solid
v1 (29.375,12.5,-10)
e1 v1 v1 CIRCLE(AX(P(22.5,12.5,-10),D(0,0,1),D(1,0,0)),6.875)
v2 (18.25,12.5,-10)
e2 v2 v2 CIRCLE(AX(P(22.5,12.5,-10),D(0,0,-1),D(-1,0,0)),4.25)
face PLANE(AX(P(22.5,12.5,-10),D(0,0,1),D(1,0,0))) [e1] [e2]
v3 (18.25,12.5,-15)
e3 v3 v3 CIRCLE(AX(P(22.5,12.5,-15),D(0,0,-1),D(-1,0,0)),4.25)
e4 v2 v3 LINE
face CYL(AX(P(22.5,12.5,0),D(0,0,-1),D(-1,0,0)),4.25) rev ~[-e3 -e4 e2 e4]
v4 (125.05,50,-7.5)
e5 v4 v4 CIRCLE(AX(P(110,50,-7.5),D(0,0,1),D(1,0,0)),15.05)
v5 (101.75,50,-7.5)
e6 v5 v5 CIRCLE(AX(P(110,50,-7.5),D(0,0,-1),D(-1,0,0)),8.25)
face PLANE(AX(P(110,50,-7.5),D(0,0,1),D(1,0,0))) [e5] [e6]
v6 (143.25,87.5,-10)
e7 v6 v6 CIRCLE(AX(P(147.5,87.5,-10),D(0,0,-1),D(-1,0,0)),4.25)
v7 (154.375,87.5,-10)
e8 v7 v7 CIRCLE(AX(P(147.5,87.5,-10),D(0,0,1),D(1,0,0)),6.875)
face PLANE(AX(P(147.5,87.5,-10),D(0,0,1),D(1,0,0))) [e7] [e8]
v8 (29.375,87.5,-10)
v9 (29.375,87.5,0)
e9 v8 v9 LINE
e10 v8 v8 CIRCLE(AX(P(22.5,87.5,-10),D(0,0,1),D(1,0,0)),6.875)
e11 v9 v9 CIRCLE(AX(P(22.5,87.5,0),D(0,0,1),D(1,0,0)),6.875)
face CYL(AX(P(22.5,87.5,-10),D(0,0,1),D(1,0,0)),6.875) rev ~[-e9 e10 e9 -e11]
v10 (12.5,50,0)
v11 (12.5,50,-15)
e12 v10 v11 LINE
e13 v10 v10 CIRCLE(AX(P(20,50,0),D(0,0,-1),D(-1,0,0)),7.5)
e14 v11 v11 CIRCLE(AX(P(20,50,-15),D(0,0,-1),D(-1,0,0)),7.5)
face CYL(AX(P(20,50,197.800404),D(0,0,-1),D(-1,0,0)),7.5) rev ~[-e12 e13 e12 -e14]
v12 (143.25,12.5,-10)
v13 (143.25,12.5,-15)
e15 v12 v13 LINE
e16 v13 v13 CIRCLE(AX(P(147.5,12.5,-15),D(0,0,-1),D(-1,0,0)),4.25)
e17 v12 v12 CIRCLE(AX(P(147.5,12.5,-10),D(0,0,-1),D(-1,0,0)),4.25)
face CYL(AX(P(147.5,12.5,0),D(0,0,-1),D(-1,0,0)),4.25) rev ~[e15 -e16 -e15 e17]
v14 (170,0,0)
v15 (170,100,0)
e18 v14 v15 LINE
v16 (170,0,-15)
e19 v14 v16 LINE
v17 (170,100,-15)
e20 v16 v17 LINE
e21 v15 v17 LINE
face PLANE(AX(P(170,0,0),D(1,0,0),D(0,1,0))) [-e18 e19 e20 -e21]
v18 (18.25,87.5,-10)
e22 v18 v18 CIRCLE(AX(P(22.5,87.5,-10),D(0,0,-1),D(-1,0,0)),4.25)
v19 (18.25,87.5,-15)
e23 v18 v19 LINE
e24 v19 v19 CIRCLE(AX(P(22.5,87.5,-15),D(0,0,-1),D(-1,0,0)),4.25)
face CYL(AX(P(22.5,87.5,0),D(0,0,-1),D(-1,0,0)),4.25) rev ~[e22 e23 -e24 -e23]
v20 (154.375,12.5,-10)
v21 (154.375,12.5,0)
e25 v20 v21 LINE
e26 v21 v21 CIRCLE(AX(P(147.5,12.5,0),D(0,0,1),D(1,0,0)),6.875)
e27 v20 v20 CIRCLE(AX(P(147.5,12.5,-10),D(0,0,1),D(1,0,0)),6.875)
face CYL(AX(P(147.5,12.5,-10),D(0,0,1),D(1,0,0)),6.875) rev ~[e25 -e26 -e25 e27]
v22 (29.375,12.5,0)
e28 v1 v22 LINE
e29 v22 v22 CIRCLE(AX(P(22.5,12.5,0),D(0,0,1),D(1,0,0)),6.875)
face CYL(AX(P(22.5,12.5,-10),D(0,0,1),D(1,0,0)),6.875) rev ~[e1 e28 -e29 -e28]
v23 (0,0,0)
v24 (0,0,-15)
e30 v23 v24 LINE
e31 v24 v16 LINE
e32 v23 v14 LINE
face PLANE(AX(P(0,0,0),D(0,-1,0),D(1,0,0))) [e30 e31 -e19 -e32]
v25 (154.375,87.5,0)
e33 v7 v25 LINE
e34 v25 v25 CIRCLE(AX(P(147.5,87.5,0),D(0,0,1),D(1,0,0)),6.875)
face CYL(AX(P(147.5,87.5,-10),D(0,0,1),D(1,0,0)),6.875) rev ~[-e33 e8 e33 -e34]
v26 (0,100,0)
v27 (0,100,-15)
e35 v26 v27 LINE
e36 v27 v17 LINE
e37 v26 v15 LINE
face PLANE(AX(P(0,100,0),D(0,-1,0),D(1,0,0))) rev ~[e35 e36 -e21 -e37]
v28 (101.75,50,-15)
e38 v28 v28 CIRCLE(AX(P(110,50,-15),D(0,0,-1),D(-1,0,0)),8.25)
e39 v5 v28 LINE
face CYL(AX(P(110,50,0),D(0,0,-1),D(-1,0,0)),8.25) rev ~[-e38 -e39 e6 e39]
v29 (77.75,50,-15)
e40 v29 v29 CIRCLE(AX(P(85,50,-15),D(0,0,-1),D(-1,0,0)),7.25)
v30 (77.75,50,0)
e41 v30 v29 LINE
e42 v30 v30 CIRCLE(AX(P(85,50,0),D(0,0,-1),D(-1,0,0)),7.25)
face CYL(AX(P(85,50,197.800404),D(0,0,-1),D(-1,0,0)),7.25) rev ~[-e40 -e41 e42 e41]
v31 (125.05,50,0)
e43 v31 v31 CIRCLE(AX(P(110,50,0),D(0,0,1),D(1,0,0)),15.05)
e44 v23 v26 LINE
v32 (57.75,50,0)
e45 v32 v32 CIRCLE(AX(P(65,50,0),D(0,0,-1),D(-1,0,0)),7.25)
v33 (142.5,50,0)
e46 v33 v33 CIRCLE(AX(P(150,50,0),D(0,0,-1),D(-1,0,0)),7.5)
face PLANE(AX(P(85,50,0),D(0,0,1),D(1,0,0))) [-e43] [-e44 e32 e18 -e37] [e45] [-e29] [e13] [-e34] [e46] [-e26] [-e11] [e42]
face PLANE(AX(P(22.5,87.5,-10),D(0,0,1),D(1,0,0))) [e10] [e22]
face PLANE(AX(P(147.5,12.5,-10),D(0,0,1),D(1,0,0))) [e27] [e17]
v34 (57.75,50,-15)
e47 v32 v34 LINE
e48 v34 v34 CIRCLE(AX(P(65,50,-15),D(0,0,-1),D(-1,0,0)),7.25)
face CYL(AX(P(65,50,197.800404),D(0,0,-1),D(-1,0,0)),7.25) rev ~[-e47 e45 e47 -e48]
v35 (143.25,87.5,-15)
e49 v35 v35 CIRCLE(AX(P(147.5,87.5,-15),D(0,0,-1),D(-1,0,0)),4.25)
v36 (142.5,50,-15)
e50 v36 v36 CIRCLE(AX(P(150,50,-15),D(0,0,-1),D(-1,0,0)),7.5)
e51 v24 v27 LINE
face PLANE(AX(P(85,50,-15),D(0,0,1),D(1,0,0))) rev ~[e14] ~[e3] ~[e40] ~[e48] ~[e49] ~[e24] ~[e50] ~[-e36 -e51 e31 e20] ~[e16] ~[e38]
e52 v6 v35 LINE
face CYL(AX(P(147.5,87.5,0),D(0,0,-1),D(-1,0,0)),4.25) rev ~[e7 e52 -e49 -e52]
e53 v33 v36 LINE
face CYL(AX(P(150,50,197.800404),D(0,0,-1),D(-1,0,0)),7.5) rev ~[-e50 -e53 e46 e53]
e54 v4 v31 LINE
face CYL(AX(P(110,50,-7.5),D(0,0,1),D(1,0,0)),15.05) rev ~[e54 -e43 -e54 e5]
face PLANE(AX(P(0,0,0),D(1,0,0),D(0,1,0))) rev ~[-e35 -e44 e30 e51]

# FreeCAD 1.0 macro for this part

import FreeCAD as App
import Part
import Sketcher

V = App.Vector
Q = App.Units.Quantity

doc = App.newDocument("Part")
body = doc.addObject("PartDesign::Body", "Body")

sketch1 = body.newObject("Sketcher::SketchObject", "Sketch")
sketch1.AttachmentSupport = (doc.getObject("XY_Plane"), [""])
sketch1.MapMode = "FlatFace"
sketch1.addGeometry(Part.LineSegment(V(0, 100, 0), V(0, 0, 0)), False)
sketch1.addGeometry(Part.LineSegment(V(0, 0, 0), V(170, 0, 0)), False)
sketch1.addGeometry(Part.LineSegment(V(170, 0, 0), V(170, 100, 0)), False)
sketch1.addGeometry(Part.LineSegment(V(170, 100, 0), V(0, 100, 0)), False)
sketch1.addConstraint(Sketcher.Constraint("Coincident", 0, 2, 1, 1))
sketch1.addConstraint(Sketcher.Constraint("Coincident", 1, 2, 2, 1))
sketch1.addConstraint(Sketcher.Constraint("Coincident", 2, 2, 3, 1))
sketch1.addConstraint(Sketcher.Constraint("Coincident", 3, 2, 0, 1))
sketch1.addConstraint(Sketcher.Constraint("Vertical", 0))
sketch1.addConstraint(Sketcher.Constraint("Horizontal", 1))
sketch1.addConstraint(Sketcher.Constraint("Vertical", 2))
sketch1.addConstraint(Sketcher.Constraint("Horizontal", 3))
sketch1.addConstraint(Sketcher.Constraint("Coincident", 0, 2, -1, 1))
sketch1.addConstraint(Sketcher.Constraint("DistanceX", 1, 1, 1, 2, Q("170 mm")))
sketch1.addConstraint(Sketcher.Constraint("DistanceY", 0, 2, 0, 1, Q("100 mm")))
pad1 = body.newObject("PartDesign::Pad", "Pad")
pad1.Profile = sketch1
pad1.Length = 15
pad1.Reversed = True

sketch2 = body.newObject("Sketcher::SketchObject", "Sketch001")
sketch2.AttachmentSupport = (doc.getObject("XY_Plane"), [""])
sketch2.MapMode = "FlatFace"
sketch2.addGeometry(Part.Circle(V(22.5, 87.5, 0), V(0, 0, 1), 4.2), False)
sketch2.addGeometry(Part.Circle(V(22.5, 12.5, 0), V(0, 0, 1), 4.2), False)
sketch2.addGeometry(Part.Circle(V(147.5, 87.5, 0), V(0, 0, 1), 4.2), False)
sketch2.addGeometry(Part.Circle(V(147.5, 12.5, 0), V(0, 0, 1), 4.2), False)
sketch2.addConstraint(Sketcher.Constraint("Equal", 0, 1))
sketch2.addConstraint(Sketcher.Constraint("Equal", 1, 2))
sketch2.addConstraint(Sketcher.Constraint("Equal", 2, 3))
sketch2.addConstraint(Sketcher.Constraint("Horizontal", 0, 3, 2, 3))
sketch2.addConstraint(Sketcher.Constraint("Horizontal", 1, 3, 3, 3))
sketch2.addConstraint(Sketcher.Constraint("Vertical", 0, 3, 1, 3))
sketch2.addConstraint(Sketcher.Constraint("Vertical", 2, 3, 3, 3))
sketch2.addConstraint(Sketcher.Constraint("Diameter", 0, Q("8.5 mm")))
sketch2.addConstraint(Sketcher.Constraint("DistanceY", 1, 3, 0, 3, Q("75 mm")))
sketch2.addConstraint(Sketcher.Constraint("DistanceX", 0, 3, 2, 3, Q("125 mm")))
sketch2.addConstraint(Sketcher.Constraint("DistanceX", -1, 1, 0, 3, Q("22.5 mm")))
sketch2.addConstraint(Sketcher.Constraint("DistanceY", -1, 1, 0, 3, Q("87.5 mm")))
doc.recompute()
hole = body.newObject("PartDesign::Hole", "Hole")
hole.Profile = sketch2
hole.ThreadType = "None"
hole.Diameter = 8.5
hole.DepthType = "ThroughAll"
hole.HoleCutType = "Counterbore"
hole.HoleCutDiameter = 13.75
hole.HoleCutDepth = 10

sketch3 = body.newObject("Sketcher::SketchObject", "Sketch002")
sketch3.AttachmentSupport = (doc.getObject("XY_Plane"), [""])
sketch3.MapMode = "FlatFace"
sketch3.addGeometry(Part.Circle(V(20, 50, 0), V(0, 0, 1), 8), False)
sketch3.addGeometry(Part.Circle(V(150, 50, 0), V(0, 0, 1), 8), False)
sketch3.addConstraint(Sketcher.Constraint("Equal", 0, 1))
sketch3.addConstraint(Sketcher.Constraint("Horizontal", 0, 3, 1, 3))
sketch3.addConstraint(Sketcher.Constraint("Diameter", 0, Q("15 mm")))
sketch3.addConstraint(Sketcher.Constraint("DistanceX", -1, 1, 0, 3, Q("20 mm")))
sketch3.addConstraint(Sketcher.Constraint("DistanceY", -1, 1, 0, 3, Q("50 mm")))
sketch3.addConstraint(Sketcher.Constraint("DistanceX", -1, 1, 1, 3, Q("150 mm")))
doc.recompute()
hole2 = body.newObject("PartDesign::Hole", "Hole001")
hole2.Profile = sketch3
hole2.ThreadType = "None"
hole2.Diameter = 15
hole2.DepthType = "ThroughAll"

sketch4 = body.newObject("Sketcher::SketchObject", "Sketch003")
sketch4.AttachmentSupport = (doc.getObject("XY_Plane"), [""])
sketch4.MapMode = "FlatFace"
sketch4.addGeometry(Part.Circle(V(65, 50, 0), V(0, 0, 1), 7), False)
sketch4.addGeometry(Part.Circle(V(85, 50, 0), V(0, 0, 1), 7), False)
sketch4.addConstraint(Sketcher.Constraint("Equal", 0, 1))
sketch4.addConstraint(Sketcher.Constraint("Horizontal", 0, 3, 1, 3))
sketch4.addConstraint(Sketcher.Constraint("Diameter", 0, Q("14.5 mm")))
sketch4.addConstraint(Sketcher.Constraint("DistanceX", -1, 1, 0, 3, Q("65 mm")))
sketch4.addConstraint(Sketcher.Constraint("DistanceY", -1, 1, 0, 3, Q("50 mm")))
sketch4.addConstraint(Sketcher.Constraint("DistanceX", -1, 1, 1, 3, Q("85 mm")))
doc.recompute()
hole3 = body.newObject("PartDesign::Hole", "Hole002")
hole3.Profile = sketch4
hole3.ThreadType = "None"
hole3.Diameter = 14.5
hole3.DepthType = "ThroughAll"

sketch5 = body.newObject("Sketcher::SketchObject", "Sketch004")
sketch5.AttachmentSupport = (doc.getObject("XY_Plane"), [""])
sketch5.MapMode = "FlatFace"
sketch5.addGeometry(Part.Circle(V(110, 50, 0), V(0, 0, 1), 8), False)
sketch5.addConstraint(Sketcher.Constraint("Diameter", 0, Q("16.5 mm")))
sketch5.addConstraint(Sketcher.Constraint("DistanceX", -1, 1, 0, 3, Q("110 mm")))
sketch5.addConstraint(Sketcher.Constraint("DistanceY", -1, 1, 0, 3, Q("50 mm")))
doc.recompute()
hole4 = body.newObject("PartDesign::Hole", "Hole003")
hole4.Profile = sketch5
hole4.ThreadType = "None"
hole4.Diameter = 16.5
hole4.DepthType = "ThroughAll"
hole4.HoleCutType = "Counterbore"
hole4.HoleCutDiameter = 30.1
hole4.HoleCutDepth = 7.5

doc.recompute()
